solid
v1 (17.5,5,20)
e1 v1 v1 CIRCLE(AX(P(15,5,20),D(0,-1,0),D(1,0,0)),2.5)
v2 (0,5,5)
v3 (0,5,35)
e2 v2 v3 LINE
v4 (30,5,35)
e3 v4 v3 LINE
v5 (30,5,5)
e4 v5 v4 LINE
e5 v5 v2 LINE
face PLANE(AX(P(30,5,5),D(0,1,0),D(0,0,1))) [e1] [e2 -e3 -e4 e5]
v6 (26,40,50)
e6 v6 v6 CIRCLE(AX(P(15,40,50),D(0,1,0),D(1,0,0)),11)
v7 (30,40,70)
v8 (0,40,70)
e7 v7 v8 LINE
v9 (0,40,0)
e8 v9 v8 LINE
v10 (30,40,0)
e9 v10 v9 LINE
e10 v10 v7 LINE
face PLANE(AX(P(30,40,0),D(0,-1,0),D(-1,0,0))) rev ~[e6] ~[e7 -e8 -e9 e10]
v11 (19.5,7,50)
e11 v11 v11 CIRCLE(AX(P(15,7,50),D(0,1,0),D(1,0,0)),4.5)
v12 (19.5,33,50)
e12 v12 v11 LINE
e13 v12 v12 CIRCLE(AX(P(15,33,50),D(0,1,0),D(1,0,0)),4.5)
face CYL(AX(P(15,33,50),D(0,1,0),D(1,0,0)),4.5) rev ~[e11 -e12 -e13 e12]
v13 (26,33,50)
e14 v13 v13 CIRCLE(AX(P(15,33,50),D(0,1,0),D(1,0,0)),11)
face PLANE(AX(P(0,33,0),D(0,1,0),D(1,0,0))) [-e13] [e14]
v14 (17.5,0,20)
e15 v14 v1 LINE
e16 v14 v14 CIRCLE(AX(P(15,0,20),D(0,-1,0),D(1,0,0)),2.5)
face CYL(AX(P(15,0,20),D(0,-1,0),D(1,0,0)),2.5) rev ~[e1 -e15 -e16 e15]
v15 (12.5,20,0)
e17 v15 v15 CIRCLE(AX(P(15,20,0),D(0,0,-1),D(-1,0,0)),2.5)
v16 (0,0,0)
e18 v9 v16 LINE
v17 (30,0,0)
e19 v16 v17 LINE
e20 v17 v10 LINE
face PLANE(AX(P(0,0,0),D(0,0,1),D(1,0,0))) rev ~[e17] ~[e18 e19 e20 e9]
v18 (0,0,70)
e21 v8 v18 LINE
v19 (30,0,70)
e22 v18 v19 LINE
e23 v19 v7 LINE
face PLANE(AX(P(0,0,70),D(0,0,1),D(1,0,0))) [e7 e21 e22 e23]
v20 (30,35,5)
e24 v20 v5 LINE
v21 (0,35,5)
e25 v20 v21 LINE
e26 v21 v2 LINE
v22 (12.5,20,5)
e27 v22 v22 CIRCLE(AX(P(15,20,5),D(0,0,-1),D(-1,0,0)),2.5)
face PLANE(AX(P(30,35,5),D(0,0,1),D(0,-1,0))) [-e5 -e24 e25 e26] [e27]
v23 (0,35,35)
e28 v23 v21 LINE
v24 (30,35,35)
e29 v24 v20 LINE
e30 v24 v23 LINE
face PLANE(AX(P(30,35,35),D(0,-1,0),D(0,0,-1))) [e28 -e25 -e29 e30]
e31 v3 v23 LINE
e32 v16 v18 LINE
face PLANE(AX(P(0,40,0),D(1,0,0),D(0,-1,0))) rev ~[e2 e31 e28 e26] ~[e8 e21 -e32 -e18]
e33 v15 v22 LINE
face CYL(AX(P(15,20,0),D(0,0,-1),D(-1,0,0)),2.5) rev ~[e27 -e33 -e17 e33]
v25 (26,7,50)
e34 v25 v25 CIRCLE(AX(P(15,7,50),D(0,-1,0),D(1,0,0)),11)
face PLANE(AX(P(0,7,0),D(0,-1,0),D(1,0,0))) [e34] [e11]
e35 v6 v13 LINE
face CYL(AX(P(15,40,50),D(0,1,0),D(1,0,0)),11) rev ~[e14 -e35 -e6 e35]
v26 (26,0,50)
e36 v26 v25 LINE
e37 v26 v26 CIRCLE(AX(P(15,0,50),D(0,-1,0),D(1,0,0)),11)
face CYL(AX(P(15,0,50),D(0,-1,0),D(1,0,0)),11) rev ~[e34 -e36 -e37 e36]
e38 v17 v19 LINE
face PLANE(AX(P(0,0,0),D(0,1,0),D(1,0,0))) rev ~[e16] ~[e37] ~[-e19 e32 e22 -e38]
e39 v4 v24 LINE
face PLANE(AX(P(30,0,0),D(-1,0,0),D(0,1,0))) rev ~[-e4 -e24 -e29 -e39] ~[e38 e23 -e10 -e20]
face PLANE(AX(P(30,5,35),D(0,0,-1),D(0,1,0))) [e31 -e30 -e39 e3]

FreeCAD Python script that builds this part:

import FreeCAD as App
import Part
import Sketcher
from FreeCAD import Vector


def add_polygon(sketch, points):
    """Adds a closed chain of lines whose ends are joined by coincident constraints."""
    first, n = sketch.GeometryCount, len(points)
    for a, b in zip(points, points[1:] + points[:1]):
        sketch.addGeometry(Part.LineSegment(App.Vector(*a, 0), App.Vector(*b, 0)), False)
    for i in range(n):
        sketch.addConstraint(Sketcher.Constraint("Coincident", first + i, 2, first + (i + 1) % n, 1))

doc = App.newDocument("Part")
body = doc.addObject("PartDesign::Body", "Body")

# Sketch on XY plane
sketch1 = doc.addObject("Sketcher::SketchObject", "Sketch")
body.addObject(sketch1)
sketch1.AttachmentSupport = (doc.XY_Plane, [""])
sketch1.MapMode = "FlatFace"
add_polygon(sketch1, [(0, 40), (0, 0), (30, 0), (30, 40)])  # lines 0-3
sketch1.addConstraint([
    Sketcher.Constraint("Vertical", 0),
    Sketcher.Constraint("Horizontal", 1),
    Sketcher.Constraint("Vertical", 2),
    Sketcher.Constraint("Horizontal", 3),
    Sketcher.Constraint("Coincident", 0, 2, -1, 1),
    Sketcher.Constraint("DistanceX", 1, 1, 1, 2, 30.0),
    Sketcher.Constraint("DistanceY", 0, 2, 0, 1, 40.0),
])
pad1 = doc.addObject("PartDesign::Pad", "Pad")
body.addObject(pad1)
pad1.Profile = sketch1
pad1.Length = 70

# Sketch on YZ plane
sketch2 = doc.addObject("Sketcher::SketchObject", "Sketch001")
body.addObject(sketch2)
sketch2.AttachmentSupport = (doc.YZ_Plane, [""])
sketch2.MapMode = "FlatFace"
sketch2.AttachmentOffset = App.Placement(Vector(0, 0, 30), App.Rotation())
add_polygon(sketch2, [(5, 35), (5, 5), (35, 5), (35, 35)])  # lines 0-3
sketch2.addConstraint([
    Sketcher.Constraint("Vertical", 0),
    Sketcher.Constraint("Horizontal", 1),
    Sketcher.Constraint("Vertical", 2),
    Sketcher.Constraint("Horizontal", 3),
    Sketcher.Constraint("Equal", 3, 0),
    Sketcher.Constraint("DistanceX", 1, 1, 1, 2, 30.0),
    Sketcher.Constraint("DistanceX", -1, 1, 0, 2, 5.0),
    Sketcher.Constraint("DistanceY", -1, 1, 0, 2, 5.0),
])
pocket1 = doc.addObject("PartDesign::Pocket", "Pocket")
body.addObject(pocket1)
pocket1.Profile = sketch2
pocket1.Length = 70

# Sketch on XZ plane
sketch3 = doc.addObject("Sketcher::SketchObject", "Sketch002")
body.addObject(sketch3)
sketch3.AttachmentSupport = (doc.XZ_Plane, [""])
sketch3.MapMode = "FlatFace"
sketch3.addGeometry(Part.Circle(Vector(15, 50, 0), Vector(0, 0, 1), 11), False)
sketch3.addConstraint([
    Sketcher.Constraint("Diameter", 0, 22.0),
    Sketcher.Constraint("DistanceX", -1, 1, 0, 3, 15.0),
    Sketcher.Constraint("DistanceY", -1, 1, 0, 3, 50.0),
])
pocket2 = doc.addObject("PartDesign::Pocket", "Pocket001")
body.addObject(pocket2)
pocket2.Profile = sketch3
pocket2.Length = 7

# Sketch on XZ plane
sketch4 = doc.addObject("Sketcher::SketchObject", "Sketch003")
body.addObject(sketch4)
sketch4.AttachmentSupport = (doc.XZ_Plane, [""])
sketch4.MapMode = "FlatFace"
sketch4.AttachmentOffset = App.Placement(Vector(0, 0, -40), App.Rotation())
sketch4.addGeometry(Part.Circle(Vector(15, 50, 0), Vector(0, 0, 1), 11), False)
sketch4.addConstraint([
    Sketcher.Constraint("Diameter", 0, 22.0),
    Sketcher.Constraint("DistanceX", -1, 1, 0, 3, 15.0),
    Sketcher.Constraint("DistanceY", -1, 1, 0, 3, 50.0),
])
pocket3 = doc.addObject("PartDesign::Pocket", "Pocket002")
body.addObject(pocket3)
pocket3.Profile = sketch4
pocket3.Length = 7
pocket3.Reversed = True

# Sketch on XZ plane
sketch5 = doc.addObject("Sketcher::SketchObject", "Sketch004")
body.addObject(sketch5)
sketch5.AttachmentSupport = (doc.XZ_Plane, [""])
sketch5.MapMode = "FlatFace"
sketch5.AttachmentOffset = App.Placement(Vector(0, 0, -33), App.Rotation())
sketch5.addGeometry(Part.Circle(Vector(15, 50, 0), Vector(0, 0, 1), 4.5), False)
sketch5.addConstraint([
    Sketcher.Constraint("Diameter", 0, 9.0),
    Sketcher.Constraint("DistanceX", -1, 1, 0, 3, 15.0),
    Sketcher.Constraint("DistanceY", -1, 1, 0, 3, 50.0),
])
pocket4 = doc.addObject("PartDesign::Pocket", "Pocket003")
body.addObject(pocket4)
pocket4.Profile = sketch5
pocket4.Length = 30
pocket4.Reversed = True

# Sketch on XZ plane
sketch6 = doc.addObject("Sketcher::SketchObject", "Sketch005")
body.addObject(sketch6)
sketch6.AttachmentSupport = (doc.XZ_Plane, [""])
sketch6.MapMode = "FlatFace"
sketch6.addGeometry(Part.Circle(Vector(15, 20, 0), Vector(0, 0, 1), 2.5), False)
sketch6.addConstraint([
    Sketcher.Constraint("Diameter", 0, 5.0),
    Sketcher.Constraint("DistanceX", -1, 1, 0, 3, 15.0),
    Sketcher.Constraint("DistanceY", -1, 1, 0, 3, 20.0),
])
pocket5 = doc.addObject("PartDesign::Pocket", "Pocket004")
body.addObject(pocket5)
pocket5.Profile = sketch6
pocket5.Length = 10

# Sketch on XY plane
sketch7 = doc.addObject("Sketcher::SketchObject", "Sketch006")
body.addObject(sketch7)
sketch7.AttachmentSupport = (doc.XY_Plane, [""])
sketch7.MapMode = "FlatFace"
sketch7.addGeometry(Part.Circle(Vector(15, 20, 0), Vector(0, 0, 1), 2.5), False)
sketch7.addConstraint([
    Sketcher.Constraint("Diameter", 0, 5.0),
    Sketcher.Constraint("DistanceX", -1, 1, 0, 3, 15.0),
    Sketcher.Constraint("DistanceY", -1, 1, 0, 3, 20.0),
])
pocket6 = doc.addObject("PartDesign::Pocket", "Pocket005")
body.addObject(pocket6)
pocket6.Profile = sketch7
pocket6.Length = 10
pocket6.Reversed = True

doc.recompute()
